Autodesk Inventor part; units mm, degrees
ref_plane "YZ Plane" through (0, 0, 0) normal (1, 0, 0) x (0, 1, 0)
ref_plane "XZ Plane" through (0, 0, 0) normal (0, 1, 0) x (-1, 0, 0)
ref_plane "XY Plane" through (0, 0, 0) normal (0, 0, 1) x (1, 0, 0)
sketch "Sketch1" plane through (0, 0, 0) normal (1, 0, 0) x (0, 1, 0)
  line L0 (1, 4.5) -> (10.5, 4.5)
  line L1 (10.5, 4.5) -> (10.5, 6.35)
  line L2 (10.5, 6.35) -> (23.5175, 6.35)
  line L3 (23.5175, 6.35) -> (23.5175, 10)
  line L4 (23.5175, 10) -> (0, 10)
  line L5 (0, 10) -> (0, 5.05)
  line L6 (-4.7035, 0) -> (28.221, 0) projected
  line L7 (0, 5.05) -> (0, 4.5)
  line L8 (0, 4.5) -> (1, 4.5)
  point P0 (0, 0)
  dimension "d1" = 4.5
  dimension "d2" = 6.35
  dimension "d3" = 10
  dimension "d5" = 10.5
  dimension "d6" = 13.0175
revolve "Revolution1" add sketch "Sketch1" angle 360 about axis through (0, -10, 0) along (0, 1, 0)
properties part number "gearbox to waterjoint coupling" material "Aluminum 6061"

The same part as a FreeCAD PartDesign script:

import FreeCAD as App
import Part
import Sketcher
from FreeCAD import Vector

doc = App.newDocument("Part")
body = doc.addObject("PartDesign::Body", "Body")

# Sketch on YZ plane
sketch1 = doc.addObject("Sketcher::SketchObject", "Sketch")
body.addObject(sketch1)
sketch1.AttachmentSupport = (doc.YZ_Plane, [""])
sketch1.MapMode = "FlatFace"
sketch1.addGeometry([
    Part.LineSegment(Vector(0, 4.5, 0), Vector(10.5, 4.5, 0)),  # 0
    Part.LineSegment(Vector(10.5, 4.5, 0), Vector(10.5, 6.3, 0)),  # 1
    Part.LineSegment(Vector(10.5, 6.3, 0), Vector(23.5, 6.3, 0)),  # 2
    Part.LineSegment(Vector(23.5, 6.3, 0), Vector(23.5, 10, 0)),  # 3
    Part.LineSegment(Vector(23.5, 10, 0), Vector(0, 10, 0)),  # 4
    Part.LineSegment(Vector(0, 10, 0), Vector(0, 4.5, 0)),  # 5
], False)
sketch1.addConstraint([
    Sketcher.Constraint("Coincident", 0, 2, 1, 1),
    Sketcher.Constraint("Coincident", 1, 2, 2, 1),
    Sketcher.Constraint("Coincident", 2, 2, 3, 1),
    Sketcher.Constraint("Coincident", 3, 2, 4, 1),
    Sketcher.Constraint("Coincident", 4, 2, 5, 1),
    Sketcher.Constraint("Coincident", 5, 2, 0, 1),
    Sketcher.Constraint("Horizontal", 0),
    Sketcher.Constraint("Vertical", 1),
    Sketcher.Constraint("Horizontal", 2),
    Sketcher.Constraint("Vertical", 3),
    Sketcher.Constraint("Horizontal", 4),
    Sketcher.Constraint("Vertical", 5),
    Sketcher.Constraint("PointOnObject", 4, 2, -2),
    Sketcher.Constraint("DistanceX", 0, 1, 0, 2, 10.5),
    Sketcher.Constraint("DistanceY", -1, 1, 3, 2, 10.0),
    Sketcher.Constraint("DistanceY", -1, 1, 0, 2, 4.5),
    Sketcher.Constraint("DistanceY", -1, 1, 1, 2, 6.35),
    Sketcher.Constraint("DistanceX", 2, 1, 2, 2, 13.0175),
])
revolution = doc.addObject("PartDesign::Revolution", "Revolution")
body.addObject(revolution)
revolution.Profile = sketch1
revolution.ReferenceAxis = (sketch1, ["H_Axis"])
revolution.Angle = 360

doc.recompute()
